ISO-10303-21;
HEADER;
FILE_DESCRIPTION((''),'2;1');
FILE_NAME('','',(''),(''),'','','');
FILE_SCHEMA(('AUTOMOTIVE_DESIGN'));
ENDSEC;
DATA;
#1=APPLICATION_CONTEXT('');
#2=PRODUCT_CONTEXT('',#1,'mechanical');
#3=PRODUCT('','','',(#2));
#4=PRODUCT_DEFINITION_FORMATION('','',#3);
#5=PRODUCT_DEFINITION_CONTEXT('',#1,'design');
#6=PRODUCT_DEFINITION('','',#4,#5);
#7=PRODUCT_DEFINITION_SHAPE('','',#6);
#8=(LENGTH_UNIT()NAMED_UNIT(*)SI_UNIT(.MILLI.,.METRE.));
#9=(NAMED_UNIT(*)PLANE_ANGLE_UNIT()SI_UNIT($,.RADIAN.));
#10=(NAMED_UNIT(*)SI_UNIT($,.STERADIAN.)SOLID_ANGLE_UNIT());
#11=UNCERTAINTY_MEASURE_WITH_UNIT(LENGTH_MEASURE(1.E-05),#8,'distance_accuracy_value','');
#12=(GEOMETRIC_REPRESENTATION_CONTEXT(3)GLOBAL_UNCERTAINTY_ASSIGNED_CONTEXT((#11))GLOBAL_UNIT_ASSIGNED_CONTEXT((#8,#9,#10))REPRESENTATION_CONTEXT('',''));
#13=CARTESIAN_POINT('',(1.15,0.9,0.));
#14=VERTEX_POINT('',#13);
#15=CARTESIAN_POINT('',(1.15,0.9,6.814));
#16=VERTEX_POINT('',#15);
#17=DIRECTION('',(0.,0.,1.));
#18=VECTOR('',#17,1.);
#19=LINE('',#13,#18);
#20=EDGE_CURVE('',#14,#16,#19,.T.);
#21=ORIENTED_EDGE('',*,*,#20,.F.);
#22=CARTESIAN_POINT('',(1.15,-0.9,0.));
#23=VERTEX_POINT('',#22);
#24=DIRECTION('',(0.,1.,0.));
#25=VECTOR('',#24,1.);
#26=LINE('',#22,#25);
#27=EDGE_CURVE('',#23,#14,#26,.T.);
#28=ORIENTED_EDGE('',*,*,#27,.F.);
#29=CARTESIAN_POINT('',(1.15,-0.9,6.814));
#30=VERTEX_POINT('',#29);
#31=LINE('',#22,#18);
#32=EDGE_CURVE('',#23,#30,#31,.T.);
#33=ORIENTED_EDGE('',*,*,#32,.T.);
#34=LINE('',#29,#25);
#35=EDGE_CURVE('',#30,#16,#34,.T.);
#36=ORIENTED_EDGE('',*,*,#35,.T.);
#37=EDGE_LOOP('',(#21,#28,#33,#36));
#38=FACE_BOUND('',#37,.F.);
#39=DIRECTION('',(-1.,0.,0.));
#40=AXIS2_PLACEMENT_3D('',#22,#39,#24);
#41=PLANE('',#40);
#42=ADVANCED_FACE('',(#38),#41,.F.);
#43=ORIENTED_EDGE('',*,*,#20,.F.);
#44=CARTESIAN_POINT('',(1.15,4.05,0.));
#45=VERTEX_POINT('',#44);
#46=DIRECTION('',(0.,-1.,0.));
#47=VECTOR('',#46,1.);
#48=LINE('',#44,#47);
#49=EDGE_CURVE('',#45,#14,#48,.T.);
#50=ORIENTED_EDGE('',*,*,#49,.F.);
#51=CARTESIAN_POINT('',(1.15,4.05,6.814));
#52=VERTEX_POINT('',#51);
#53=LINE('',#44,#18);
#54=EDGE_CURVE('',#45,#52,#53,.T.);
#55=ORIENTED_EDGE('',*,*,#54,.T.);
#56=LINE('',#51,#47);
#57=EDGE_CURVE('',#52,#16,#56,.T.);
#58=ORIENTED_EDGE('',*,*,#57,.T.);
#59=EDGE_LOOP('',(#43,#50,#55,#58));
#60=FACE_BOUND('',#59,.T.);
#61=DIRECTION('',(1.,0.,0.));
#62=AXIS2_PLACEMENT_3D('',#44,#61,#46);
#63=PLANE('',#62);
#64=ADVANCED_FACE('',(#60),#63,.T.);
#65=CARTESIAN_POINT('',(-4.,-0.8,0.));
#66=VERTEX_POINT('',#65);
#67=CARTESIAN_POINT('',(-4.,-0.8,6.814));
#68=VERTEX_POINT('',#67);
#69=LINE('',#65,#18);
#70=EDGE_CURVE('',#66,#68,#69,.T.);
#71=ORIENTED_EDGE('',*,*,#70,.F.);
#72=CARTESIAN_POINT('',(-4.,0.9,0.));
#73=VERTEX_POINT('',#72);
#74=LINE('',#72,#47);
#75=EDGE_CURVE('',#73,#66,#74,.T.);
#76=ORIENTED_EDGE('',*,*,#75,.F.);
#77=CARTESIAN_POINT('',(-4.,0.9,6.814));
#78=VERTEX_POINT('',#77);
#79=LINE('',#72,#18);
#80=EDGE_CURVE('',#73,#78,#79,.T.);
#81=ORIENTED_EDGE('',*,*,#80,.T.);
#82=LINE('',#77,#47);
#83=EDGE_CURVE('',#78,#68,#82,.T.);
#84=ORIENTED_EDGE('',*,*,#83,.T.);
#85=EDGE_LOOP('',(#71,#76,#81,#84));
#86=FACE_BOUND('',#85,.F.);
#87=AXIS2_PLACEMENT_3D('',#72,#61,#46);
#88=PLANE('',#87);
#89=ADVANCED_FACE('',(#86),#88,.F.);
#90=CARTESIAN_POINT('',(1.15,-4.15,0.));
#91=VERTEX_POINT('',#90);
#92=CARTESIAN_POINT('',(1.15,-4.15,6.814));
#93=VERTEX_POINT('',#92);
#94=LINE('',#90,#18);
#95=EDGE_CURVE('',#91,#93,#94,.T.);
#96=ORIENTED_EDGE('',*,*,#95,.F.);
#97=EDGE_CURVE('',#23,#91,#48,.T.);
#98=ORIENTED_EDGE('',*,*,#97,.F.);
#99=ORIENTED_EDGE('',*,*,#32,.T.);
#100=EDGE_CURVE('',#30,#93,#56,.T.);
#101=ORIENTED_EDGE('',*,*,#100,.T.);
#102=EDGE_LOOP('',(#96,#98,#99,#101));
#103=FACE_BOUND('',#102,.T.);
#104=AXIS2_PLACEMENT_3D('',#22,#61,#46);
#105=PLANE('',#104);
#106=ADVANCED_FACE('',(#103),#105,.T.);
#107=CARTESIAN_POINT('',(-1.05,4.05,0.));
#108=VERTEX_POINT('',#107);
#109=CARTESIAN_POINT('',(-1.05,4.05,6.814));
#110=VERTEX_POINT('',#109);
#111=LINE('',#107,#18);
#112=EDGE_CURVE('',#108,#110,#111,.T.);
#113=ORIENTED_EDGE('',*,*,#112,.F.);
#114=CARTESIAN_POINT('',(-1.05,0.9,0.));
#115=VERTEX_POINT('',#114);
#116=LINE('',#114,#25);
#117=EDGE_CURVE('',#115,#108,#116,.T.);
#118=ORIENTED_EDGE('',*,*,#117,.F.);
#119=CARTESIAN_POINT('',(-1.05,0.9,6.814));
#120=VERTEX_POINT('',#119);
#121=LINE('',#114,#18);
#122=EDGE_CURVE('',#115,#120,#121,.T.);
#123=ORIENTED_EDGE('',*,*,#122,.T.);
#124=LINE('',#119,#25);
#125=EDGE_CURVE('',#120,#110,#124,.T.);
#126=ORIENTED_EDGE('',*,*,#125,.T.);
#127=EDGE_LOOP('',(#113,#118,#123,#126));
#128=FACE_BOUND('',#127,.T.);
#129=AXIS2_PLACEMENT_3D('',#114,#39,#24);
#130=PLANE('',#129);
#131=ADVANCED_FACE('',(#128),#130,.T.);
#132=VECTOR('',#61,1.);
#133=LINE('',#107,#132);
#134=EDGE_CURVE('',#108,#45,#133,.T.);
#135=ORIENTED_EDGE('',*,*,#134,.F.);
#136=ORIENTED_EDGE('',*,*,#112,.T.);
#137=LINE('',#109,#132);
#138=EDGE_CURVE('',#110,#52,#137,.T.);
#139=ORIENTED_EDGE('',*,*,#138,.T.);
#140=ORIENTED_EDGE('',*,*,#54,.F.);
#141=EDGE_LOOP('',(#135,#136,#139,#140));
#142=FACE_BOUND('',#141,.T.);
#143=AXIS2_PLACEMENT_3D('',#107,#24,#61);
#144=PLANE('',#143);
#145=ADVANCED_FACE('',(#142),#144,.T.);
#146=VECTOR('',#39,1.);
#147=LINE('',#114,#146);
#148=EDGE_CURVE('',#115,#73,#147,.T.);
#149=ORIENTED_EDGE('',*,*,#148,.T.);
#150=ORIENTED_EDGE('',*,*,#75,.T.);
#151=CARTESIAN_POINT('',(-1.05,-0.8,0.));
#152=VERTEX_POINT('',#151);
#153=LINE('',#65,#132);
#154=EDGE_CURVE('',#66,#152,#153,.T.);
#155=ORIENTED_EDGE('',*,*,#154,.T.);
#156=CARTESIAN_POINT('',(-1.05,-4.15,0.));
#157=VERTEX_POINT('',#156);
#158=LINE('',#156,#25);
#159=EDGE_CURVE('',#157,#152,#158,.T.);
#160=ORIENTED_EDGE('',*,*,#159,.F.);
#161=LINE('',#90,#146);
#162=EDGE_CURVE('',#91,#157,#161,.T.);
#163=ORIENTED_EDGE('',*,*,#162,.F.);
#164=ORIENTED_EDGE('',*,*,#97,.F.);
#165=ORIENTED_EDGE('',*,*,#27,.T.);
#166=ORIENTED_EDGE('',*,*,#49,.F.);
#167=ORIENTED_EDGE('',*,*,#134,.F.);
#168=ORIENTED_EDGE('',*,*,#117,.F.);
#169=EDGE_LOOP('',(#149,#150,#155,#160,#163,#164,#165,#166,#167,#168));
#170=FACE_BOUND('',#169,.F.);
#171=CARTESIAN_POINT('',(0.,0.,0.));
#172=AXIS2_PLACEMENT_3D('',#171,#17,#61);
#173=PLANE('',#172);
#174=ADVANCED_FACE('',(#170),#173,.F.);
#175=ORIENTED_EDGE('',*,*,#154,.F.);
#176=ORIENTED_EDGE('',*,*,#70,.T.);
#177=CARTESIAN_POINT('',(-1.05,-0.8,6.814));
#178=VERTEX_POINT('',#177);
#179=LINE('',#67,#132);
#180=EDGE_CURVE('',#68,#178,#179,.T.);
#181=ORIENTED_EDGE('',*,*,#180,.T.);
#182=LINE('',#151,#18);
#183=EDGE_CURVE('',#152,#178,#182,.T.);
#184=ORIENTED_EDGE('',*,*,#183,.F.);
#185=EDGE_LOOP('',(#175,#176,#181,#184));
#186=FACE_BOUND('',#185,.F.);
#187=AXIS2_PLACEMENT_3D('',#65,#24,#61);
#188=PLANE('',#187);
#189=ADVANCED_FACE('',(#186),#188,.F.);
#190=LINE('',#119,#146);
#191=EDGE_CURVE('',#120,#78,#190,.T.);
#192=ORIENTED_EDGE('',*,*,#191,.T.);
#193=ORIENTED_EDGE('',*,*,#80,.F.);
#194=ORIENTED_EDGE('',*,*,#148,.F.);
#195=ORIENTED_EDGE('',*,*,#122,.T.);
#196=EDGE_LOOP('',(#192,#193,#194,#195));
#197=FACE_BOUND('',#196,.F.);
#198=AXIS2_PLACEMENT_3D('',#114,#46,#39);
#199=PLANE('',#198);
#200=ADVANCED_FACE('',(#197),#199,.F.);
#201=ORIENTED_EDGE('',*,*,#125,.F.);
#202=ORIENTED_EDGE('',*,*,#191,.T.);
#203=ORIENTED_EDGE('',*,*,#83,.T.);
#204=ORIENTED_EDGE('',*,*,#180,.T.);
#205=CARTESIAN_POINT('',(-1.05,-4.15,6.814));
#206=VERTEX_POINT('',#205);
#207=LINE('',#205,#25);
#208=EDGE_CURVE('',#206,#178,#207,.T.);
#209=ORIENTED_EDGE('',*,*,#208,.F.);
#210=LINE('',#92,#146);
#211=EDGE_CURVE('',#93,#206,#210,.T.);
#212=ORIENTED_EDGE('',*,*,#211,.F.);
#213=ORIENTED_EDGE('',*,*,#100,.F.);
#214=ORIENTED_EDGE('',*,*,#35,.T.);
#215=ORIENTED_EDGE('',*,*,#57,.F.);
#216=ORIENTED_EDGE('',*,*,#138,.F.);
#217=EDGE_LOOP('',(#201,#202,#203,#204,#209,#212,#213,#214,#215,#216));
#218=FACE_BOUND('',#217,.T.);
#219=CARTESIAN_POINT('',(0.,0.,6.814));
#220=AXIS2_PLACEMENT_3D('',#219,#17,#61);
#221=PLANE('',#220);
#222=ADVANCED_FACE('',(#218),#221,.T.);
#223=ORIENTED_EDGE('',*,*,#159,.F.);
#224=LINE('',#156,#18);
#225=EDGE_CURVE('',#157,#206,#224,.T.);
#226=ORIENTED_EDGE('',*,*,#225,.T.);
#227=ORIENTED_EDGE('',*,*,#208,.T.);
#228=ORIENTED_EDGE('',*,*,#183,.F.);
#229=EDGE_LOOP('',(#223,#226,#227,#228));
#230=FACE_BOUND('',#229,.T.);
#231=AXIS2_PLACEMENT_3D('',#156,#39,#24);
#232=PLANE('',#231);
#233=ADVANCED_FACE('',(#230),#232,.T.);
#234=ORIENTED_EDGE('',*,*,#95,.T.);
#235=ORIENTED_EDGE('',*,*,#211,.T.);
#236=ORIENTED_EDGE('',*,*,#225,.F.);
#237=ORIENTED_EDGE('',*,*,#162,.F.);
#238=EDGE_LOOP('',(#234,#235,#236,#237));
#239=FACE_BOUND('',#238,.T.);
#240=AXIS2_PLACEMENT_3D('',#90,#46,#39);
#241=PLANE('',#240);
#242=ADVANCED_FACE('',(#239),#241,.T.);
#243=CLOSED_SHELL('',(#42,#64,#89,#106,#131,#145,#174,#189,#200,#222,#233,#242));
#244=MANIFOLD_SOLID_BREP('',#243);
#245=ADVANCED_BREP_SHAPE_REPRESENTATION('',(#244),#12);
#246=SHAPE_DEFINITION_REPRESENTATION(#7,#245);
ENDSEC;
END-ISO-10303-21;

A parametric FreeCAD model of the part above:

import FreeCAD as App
import Part
import Sketcher
from FreeCAD import Vector
Q = App.Units.Quantity

doc = App.newDocument("Part")
body = doc.addObject("PartDesign::Body", "Body")

# Sketch on XY plane
sketch1 = body.newObject("Sketcher::SketchObject", "Sketch")
sketch1.AttachmentSupport = (doc.getObject("XY_Plane"), [""])
sketch1.MapMode = "FlatFace"
sketch1.addGeometry(Part.LineSegment(Vector(1.1, 4, 0), Vector(-1.1, 4, 0)), False)
sketch1.addGeometry(Part.LineSegment(Vector(-1.1, 4, 0), Vector(-1.1, 0.9, 0)), False)
sketch1.addGeometry(Part.LineSegment(Vector(-1.1, 0.9, 0), Vector(-4, 0.9, 0)), False)
sketch1.addGeometry(Part.LineSegment(Vector(-4, 0.9, 0), Vector(-4, -0.8, 0)), False)
sketch1.addGeometry(Part.LineSegment(Vector(-4, -0.8, 0), Vector(-1.1, -0.8, 0)), False)
sketch1.addGeometry(Part.LineSegment(Vector(-1.1, -0.8, 0), Vector(-1.1, -4.2, 0)), False)
sketch1.addGeometry(Part.LineSegment(Vector(-1.1, -4.2, 0), Vector(1.1, -4.2, 0)), False)
sketch1.addGeometry(Part.LineSegment(Vector(1.1, -4.2, 0), Vector(1.1, 4, 0)), False)
sketch1.addConstraint(Sketcher.Constraint("Coincident", 0, 2, 1, 1))
sketch1.addConstraint(Sketcher.Constraint("Coincident", 1, 2, 2, 1))
sketch1.addConstraint(Sketcher.Constraint("Coincident", 2, 2, 3, 1))
sketch1.addConstraint(Sketcher.Constraint("Coincident", 3, 2, 4, 1))
sketch1.addConstraint(Sketcher.Constraint("Coincident", 4, 2, 5, 1))
sketch1.addConstraint(Sketcher.Constraint("Coincident", 5, 2, 6, 1))
sketch1.addConstraint(Sketcher.Constraint("Coincident", 6, 2, 7, 1))
sketch1.addConstraint(Sketcher.Constraint("Coincident", 7, 2, 0, 1))
sketch1.addConstraint(Sketcher.Constraint("Horizontal", 0))
sketch1.addConstraint(Sketcher.Constraint("Vertical", 1))
sketch1.addConstraint(Sketcher.Constraint("Horizontal", 2))
sketch1.addConstraint(Sketcher.Constraint("Vertical", 3))
sketch1.addConstraint(Sketcher.Constraint("Horizontal", 4))
sketch1.addConstraint(Sketcher.Constraint("Vertical", 5))
sketch1.addConstraint(Sketcher.Constraint("Horizontal", 6))
sketch1.addConstraint(Sketcher.Constraint("Vertical", 7))
sketch1.addConstraint(Sketcher.Constraint("Vertical", 1, 2, 4, 2))
sketch1.addConstraint(Sketcher.Constraint("DistanceX", 0, 2, 0, 1, Q("2.2 mm")))
sketch1.addConstraint(Sketcher.Constraint("DistanceY", 3, 2, 3, 1, Q("1.7 mm")))
sketch1.addConstraint(Sketcher.Constraint("DistanceY", 7, 1, 7, 2, Q("8.2 mm")))
sketch1.addConstraint(Sketcher.Constraint("DistanceX", 2, 2, -1, 1, Q("4 mm")))
sketch1.addConstraint(Sketcher.Constraint("DistanceY", -1, 1, 1, 2, Q("0.9 mm")))
sketch1.addConstraint(Sketcher.Constraint("DistanceY", 5, 2, -1, 1, Q("4.15 mm")))
sketch1.addConstraint(Sketcher.Constraint("DistanceX", -1, 1, 6, 2, Q("1.15 mm")))
pad1 = body.newObject("PartDesign::Pad", "Pad")
pad1.Profile = sketch1
pad1.Length = 6.814

doc.recompute()
